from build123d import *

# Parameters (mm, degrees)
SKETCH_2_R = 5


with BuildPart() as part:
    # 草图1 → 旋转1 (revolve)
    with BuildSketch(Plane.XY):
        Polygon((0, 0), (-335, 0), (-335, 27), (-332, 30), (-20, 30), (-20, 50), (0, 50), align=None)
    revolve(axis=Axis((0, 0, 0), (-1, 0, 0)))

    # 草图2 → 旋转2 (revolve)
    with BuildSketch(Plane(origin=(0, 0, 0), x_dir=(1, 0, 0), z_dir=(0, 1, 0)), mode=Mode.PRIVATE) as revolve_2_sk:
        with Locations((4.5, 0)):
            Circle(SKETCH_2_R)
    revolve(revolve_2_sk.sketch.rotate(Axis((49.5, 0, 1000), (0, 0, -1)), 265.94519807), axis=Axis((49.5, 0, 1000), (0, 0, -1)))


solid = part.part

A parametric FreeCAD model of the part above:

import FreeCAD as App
import Part
import Sketcher


def add_polygon(sketch, points):
    """Adds a closed chain of lines whose ends are joined by coincident constraints."""
    first, n = sketch.GeometryCount, len(points)
    for a, b in zip(points, points[1:] + points[:1]):
        sketch.addGeometry(Part.LineSegment(App.Vector(*a, 0), App.Vector(*b, 0)), False)
    for i in range(n):
        sketch.addConstraint(Sketcher.Constraint("Coincident", first + i, 2, first + (i + 1) % n, 1))

doc = App.newDocument("Part")
body = doc.addObject("PartDesign::Body", "Body")

sketch1 = body.newObject("Sketcher::SketchObject", "Sketch")
sketch1.AttachmentSupport = (doc.getObject("XY_Plane"), [""])
sketch1.MapMode = "FlatFace"
add_polygon(sketch1, [(-335, 0), (0, 0), (0, 50), (-20, 50), (-20, 30), (-332, 30), (-335, 27)])
sketch1.addConstraint(Sketcher.Constraint("Horizontal", 0))
sketch1.addConstraint(Sketcher.Constraint("Vertical", 1))
sketch1.addConstraint(Sketcher.Constraint("Horizontal", 2))
sketch1.addConstraint(Sketcher.Constraint("Vertical", 3))
sketch1.addConstraint(Sketcher.Constraint("Horizontal", 4))
sketch1.addConstraint(Sketcher.Constraint("Vertical", 6))
sketch1.addConstraint(Sketcher.Constraint("Coincident", 0, 2, -1, 1))
sketch1.addConstraint(Sketcher.Constraint("Equal", 2, 3))
sketch1.addConstraint(Sketcher.Constraint("DistanceX", 0, 1, 0, 2, 335.0))
sketch1.addConstraint(Sketcher.Constraint("DistanceX", 2, 2, 2, 1, 20.0))
sketch1.addConstraint(Sketcher.Constraint("DistanceX", 4, 2, 4, 1, 312.0))
sketch1.addConstraint(Sketcher.Constraint("DistanceY", 1, 1, 1, 2, 50.0))
sketch1.addConstraint(Sketcher.Constraint("DistanceY", 6, 2, 6, 1, 27.0))
revolution = body.newObject("PartDesign::Revolution", "Revolution")
revolution.Profile = sketch1
revolution.ReferenceAxis = (sketch1, ["H_Axis"])
revolution.Angle = 360

sketch2 = body.newObject("Sketcher::SketchObject", "Sketch001")
sketch2.AttachmentSupport = (doc.getObject("XZ_Plane"), [""])
sketch2.MapMode = "FlatFace"
sketch2.addGeometry(Part.Circle(App.Vector(4, 0, 0), App.Vector(0, 0, 1), 5), False)
sketch2.addGeometry(Part.LineSegment(App.Vector(50, 0, 0), App.Vector(50, -10, 0)), True)
sketch2.addConstraint(Sketcher.Constraint("Vertical", 1))
sketch2.addConstraint(Sketcher.Constraint("PointOnObject", 0, 3, -1))
sketch2.addConstraint(Sketcher.Constraint("PointOnObject", 1, 1, -1))
sketch2.addConstraint(Sketcher.Constraint("Diameter", 0, 10.0))
sketch2.addConstraint(Sketcher.Constraint("DistanceY", 1, 2, 1, 1, 10.0))
sketch2.addConstraint(Sketcher.Constraint("DistanceX", 0, 3, 1, 1, 45.0))
sketch2.addConstraint(Sketcher.Constraint("DistanceX", -1, 1, 0, 3, 4.5))
revolution2 = body.newObject("PartDesign::Revolution", "Revolution001")
revolution2.Profile = sketch2
revolution2.ReferenceAxis = (sketch2, ["Axis0"])
revolution2.Angle = 360

doc.recompute()
